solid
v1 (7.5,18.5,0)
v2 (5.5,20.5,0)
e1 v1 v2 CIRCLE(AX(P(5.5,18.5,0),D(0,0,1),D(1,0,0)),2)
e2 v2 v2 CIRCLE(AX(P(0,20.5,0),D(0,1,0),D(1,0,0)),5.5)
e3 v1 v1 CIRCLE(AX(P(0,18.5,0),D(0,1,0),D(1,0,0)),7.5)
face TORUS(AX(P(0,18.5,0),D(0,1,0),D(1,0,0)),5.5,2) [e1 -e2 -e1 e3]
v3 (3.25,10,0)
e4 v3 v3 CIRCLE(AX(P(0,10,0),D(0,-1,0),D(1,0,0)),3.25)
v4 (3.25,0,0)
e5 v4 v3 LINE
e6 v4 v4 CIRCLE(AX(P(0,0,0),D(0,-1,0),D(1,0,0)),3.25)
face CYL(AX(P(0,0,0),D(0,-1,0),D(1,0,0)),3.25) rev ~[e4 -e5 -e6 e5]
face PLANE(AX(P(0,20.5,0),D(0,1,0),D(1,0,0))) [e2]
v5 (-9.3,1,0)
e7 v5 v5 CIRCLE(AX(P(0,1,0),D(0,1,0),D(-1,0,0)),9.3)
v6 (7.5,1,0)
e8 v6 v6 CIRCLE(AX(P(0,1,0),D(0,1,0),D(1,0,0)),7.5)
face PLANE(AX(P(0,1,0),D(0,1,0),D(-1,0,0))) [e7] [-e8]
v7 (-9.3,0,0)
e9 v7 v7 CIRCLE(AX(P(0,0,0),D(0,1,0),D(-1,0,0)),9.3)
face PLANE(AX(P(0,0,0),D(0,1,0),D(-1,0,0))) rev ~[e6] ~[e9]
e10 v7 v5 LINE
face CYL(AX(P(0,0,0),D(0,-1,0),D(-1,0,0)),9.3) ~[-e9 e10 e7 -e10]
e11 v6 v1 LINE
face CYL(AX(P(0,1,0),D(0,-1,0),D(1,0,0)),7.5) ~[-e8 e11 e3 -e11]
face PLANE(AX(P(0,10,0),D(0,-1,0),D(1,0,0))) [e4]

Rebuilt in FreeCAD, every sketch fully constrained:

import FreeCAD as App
import Part
import Sketcher
from FreeCAD import Vector


def edges_at(feature, points):
    """Names of the edges that pass closest to the given points."""
    edges = feature.Shape.Edges
    near = lambda p: min(range(len(edges)), key=lambda i: edges[i].distToShape(Part.Vertex(*p))[0])
    return sorted({f"Edge{near(p) + 1}" for p in points})

doc = App.newDocument("Part")
body = doc.addObject("PartDesign::Body", "Body")

sketch1 = doc.addObject("Sketcher::SketchObject", "Sketch")
body.addObject(sketch1)
sketch1.AttachmentSupport = (doc.XZ_Plane, [""])
sketch1.MapMode = "FlatFace"
sketch1.addGeometry(Part.Circle(Vector(0, 0, 0), Vector(0, 0, 1), 9), False)
sketch1.addConstraint([
    Sketcher.Constraint("Coincident", 0, 3, -1, 1),
    Sketcher.Constraint("Diameter", 0, 18.6),
])
pad1 = doc.addObject("PartDesign::Pad", "Pad")
body.addObject(pad1)
pad1.Profile = sketch1
pad1.Length = 1
pad1.Reversed = True

sketch2 = doc.addObject("Sketcher::SketchObject", "Sketch001")
body.addObject(sketch2)
sketch2.AttachmentSupport = (doc.XZ_Plane, [""])
sketch2.MapMode = "FlatFace"
sketch2.AttachmentOffset = App.Placement(Vector(0, 0, -1), App.Rotation())
sketch2.addGeometry(Part.Circle(Vector(0, 0, 0), Vector(0, 0, 1), 8), False)
sketch2.addConstraint([
    Sketcher.Constraint("Coincident", 0, 3, -1, 1),
    Sketcher.Constraint("Diameter", 0, 15.0),
])
pad2 = doc.addObject("PartDesign::Pad", "Pad001")
body.addObject(pad2)
pad2.Profile = sketch2
pad2.Length = 19.5
pad2.Reversed = True
doc.recompute()

fillet = doc.addObject("PartDesign::Fillet", "Fillet")
body.addObject(fillet)
fillet.Base = (pad2, edges_at(pad2, [(-7.5, 20.5, 0)]))
fillet.Radius = 2

sketch3 = doc.addObject("Sketcher::SketchObject", "Sketch002")
body.addObject(sketch3)
sketch3.AttachmentSupport = (doc.XZ_Plane, [""])
sketch3.MapMode = "FlatFace"
sketch3.addGeometry(Part.Circle(Vector(0, 0, 0), Vector(0, 0, 1), 3.2), False)
sketch3.addConstraint([
    Sketcher.Constraint("Coincident", 0, 3, -1, 1),
    Sketcher.Constraint("Diameter", 0, 6.5),
])
pocket1 = doc.addObject("PartDesign::Pocket", "Pocket")
body.addObject(pocket1)
pocket1.Profile = sketch3
pocket1.Length = 10

doc.recompute()
